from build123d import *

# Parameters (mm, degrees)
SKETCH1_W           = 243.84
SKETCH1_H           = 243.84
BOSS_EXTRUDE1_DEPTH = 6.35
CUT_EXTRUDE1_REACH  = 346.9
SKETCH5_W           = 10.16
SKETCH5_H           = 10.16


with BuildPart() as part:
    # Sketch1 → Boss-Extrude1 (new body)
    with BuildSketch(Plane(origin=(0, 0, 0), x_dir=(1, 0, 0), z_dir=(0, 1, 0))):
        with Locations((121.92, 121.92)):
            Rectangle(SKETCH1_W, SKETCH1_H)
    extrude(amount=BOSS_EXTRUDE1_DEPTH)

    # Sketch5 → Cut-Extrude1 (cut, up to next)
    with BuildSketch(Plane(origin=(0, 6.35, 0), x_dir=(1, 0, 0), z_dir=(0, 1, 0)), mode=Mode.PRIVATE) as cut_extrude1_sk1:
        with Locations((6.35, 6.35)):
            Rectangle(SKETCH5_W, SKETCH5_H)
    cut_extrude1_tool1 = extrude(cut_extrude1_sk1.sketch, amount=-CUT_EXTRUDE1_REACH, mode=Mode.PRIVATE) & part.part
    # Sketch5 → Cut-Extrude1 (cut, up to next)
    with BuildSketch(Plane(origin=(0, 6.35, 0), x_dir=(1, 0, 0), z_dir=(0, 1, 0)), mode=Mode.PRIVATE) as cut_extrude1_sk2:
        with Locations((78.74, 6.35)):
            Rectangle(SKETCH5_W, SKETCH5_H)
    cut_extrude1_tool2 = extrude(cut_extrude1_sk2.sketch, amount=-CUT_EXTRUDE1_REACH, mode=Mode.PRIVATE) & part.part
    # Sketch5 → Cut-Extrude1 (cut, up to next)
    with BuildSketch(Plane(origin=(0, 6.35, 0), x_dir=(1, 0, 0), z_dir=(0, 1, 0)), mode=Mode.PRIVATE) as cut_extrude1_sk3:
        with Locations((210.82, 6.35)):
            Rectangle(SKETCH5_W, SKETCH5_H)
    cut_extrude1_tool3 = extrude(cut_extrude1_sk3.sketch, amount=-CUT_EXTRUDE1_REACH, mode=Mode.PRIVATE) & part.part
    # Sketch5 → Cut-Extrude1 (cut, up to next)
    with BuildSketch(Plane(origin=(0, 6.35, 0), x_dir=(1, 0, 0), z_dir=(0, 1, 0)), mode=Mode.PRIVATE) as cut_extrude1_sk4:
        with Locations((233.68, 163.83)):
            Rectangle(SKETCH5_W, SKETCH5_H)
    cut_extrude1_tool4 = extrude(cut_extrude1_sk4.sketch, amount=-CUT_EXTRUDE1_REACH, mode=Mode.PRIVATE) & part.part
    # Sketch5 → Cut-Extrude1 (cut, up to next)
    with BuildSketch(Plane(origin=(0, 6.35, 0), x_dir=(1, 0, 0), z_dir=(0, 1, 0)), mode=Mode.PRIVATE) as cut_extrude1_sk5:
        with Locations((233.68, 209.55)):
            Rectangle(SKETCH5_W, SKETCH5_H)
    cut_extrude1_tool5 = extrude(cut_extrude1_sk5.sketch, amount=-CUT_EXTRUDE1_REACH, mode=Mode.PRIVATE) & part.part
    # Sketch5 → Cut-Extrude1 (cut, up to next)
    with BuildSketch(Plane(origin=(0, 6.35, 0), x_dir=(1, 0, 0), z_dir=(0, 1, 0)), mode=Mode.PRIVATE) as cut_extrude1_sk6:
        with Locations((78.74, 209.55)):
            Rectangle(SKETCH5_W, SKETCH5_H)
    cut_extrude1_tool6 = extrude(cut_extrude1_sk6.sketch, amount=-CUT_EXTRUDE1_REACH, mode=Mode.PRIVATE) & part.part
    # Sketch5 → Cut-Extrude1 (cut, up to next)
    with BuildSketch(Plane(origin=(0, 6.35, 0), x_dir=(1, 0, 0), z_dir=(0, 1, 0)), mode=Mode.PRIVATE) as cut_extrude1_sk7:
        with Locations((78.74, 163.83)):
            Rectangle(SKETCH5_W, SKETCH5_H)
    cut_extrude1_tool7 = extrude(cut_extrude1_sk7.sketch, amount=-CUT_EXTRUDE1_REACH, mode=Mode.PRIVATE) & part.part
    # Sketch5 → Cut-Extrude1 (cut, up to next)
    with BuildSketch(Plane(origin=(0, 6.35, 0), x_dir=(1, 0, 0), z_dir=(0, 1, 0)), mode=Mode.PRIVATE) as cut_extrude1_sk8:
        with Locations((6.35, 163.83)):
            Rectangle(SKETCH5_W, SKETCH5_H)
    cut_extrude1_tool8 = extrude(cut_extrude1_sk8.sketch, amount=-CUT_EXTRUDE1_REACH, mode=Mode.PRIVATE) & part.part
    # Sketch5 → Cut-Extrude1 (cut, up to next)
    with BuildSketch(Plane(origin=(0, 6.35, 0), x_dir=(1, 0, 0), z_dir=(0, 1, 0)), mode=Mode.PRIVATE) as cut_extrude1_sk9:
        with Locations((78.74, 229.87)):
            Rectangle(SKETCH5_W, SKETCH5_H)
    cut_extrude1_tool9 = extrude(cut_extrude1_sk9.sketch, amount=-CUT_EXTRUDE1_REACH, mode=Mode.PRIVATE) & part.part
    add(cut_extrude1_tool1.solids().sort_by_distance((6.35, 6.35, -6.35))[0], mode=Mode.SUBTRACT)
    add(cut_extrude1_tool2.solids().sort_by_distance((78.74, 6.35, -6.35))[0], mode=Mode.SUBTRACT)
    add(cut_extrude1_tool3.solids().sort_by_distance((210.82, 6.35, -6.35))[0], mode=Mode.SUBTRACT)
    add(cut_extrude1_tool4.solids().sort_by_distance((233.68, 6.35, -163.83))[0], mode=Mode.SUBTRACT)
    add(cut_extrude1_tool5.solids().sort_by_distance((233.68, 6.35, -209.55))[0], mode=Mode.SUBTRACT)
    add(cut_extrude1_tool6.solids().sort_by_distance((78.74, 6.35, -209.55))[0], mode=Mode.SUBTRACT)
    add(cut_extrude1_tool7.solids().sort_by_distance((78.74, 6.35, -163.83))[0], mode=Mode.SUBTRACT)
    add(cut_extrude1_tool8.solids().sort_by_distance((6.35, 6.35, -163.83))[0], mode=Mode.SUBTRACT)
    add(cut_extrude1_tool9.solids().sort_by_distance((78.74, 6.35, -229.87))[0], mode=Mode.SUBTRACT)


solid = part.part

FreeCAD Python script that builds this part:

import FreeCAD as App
import Part
import Sketcher

V = App.Vector
Q = App.Units.Quantity

doc = App.newDocument("Part")
params = doc.addObject("Spreadsheet::Sheet", "Params")
for row, (alias, value) in enumerate([
    ("sketch1_width", "9.6 in"),
    ("pad1_length", "0.25 in"),
    ("sketch2_width", "0.4 in"),
    ("sketch3_width", "0.4 in"),
    ("sketch4_width", "0.4 in"),
    ("sketch5_width", "0.4 in"),
    ("sketch6_width", "0.4 in"),
    ("sketch7_width", "0.4 in"),
    ("sketch8_width", "0.4 in"),
    ("sketch9_width", "0.4 in"),
    ("sketch10_width", "0.4 in"),
], start=1):
    params.set(f"A{row}", alias)
    params.set(f"B{row}", "=" + value)
    params.setAlias(f"B{row}", alias)

body = doc.addObject("PartDesign::Body", "Body")

# Sketch on XZ plane
sketch1 = body.newObject("Sketcher::SketchObject", "Sketch")
sketch1.AttachmentSupport = (doc.getObject("XZ_Plane"), [""])
sketch1.MapMode = "FlatFace"
sketch1.addGeometry([
    Part.LineSegment(V(0, -244, 0), V(0, 0, 0)),
    Part.LineSegment(V(0, 0, 0), V(244, 0, 0)),
    Part.LineSegment(V(244, 0, 0), V(244, -244, 0)),
    Part.LineSegment(V(244, -244, 0), V(0, -244, 0)),
], False)
sketch1.addConstraint([
    Sketcher.Constraint("Coincident", 0, 2, 1, 1),
    Sketcher.Constraint("Coincident", 1, 2, 2, 1),
    Sketcher.Constraint("Coincident", 2, 2, 3, 1),
    Sketcher.Constraint("Coincident", 3, 2, 0, 1),
    Sketcher.Constraint("Vertical", 0),
    Sketcher.Constraint("Horizontal", 1),
    Sketcher.Constraint("Vertical", 2),
    Sketcher.Constraint("Horizontal", 3),
    Sketcher.Constraint("Coincident", 0, 2, -1, 1),
    Sketcher.Constraint("Equal", 3, 0),
    Sketcher.Constraint("DistanceX", 1, 1, 1, 2, Q("9.6 in")),
])
sketch1.setExpression("Constraints[10]", "Params.sketch1_width")
pad1 = body.newObject("PartDesign::Pad", "Pad")
pad1.Profile = sketch1
pad1.setExpression("Length", "Params.pad1_length")
pad1.Reversed = True

# Sketch on XZ plane
sketch2 = body.newObject("Sketcher::SketchObject", "Sketch001")
sketch2.AttachmentSupport = (doc.getObject("XZ_Plane"), [""])
sketch2.MapMode = "FlatFace"
sketch2.AttachmentOffset = App.Placement(V(0, 0, -0.25 * 25.4), App.Rotation())
sketch2.addGeometry([
    Part.LineSegment(V(1, -11, 0), V(1, -1, 0)),
    Part.LineSegment(V(1, -1, 0), V(11, -1, 0)),
    Part.LineSegment(V(11, -1, 0), V(11, -11, 0)),
    Part.LineSegment(V(11, -11, 0), V(1, -11, 0)),
], False)
sketch2.addConstraint([
    Sketcher.Constraint("Coincident", 0, 2, 1, 1),
    Sketcher.Constraint("Coincident", 1, 2, 2, 1),
    Sketcher.Constraint("Coincident", 2, 2, 3, 1),
    Sketcher.Constraint("Coincident", 3, 2, 0, 1),
    Sketcher.Constraint("Vertical", 0),
    Sketcher.Constraint("Horizontal", 1),
    Sketcher.Constraint("Vertical", 2),
    Sketcher.Constraint("Horizontal", 3),
    Sketcher.Constraint("Equal", 3, 0),
    Sketcher.Constraint("DistanceX", 1, 1, 1, 2, Q("0.4 in")),
    Sketcher.Constraint("DistanceX", -1, 1, 0, 2, Q("0.05 in")),
    Sketcher.Constraint("DistanceY", 0, 2, -1, 1, Q("0.05 in")),
])
sketch2.setExpression("Constraints[9]", "Params.sketch2_width")
pocket1 = body.newObject("PartDesign::Pocket", "Pocket")
pocket1.Profile = sketch2
pocket1.Type = "UpToFirst"
pocket1.Reversed = True

# Sketch on XZ plane
sketch3 = body.newObject("Sketcher::SketchObject", "Sketch002")
sketch3.AttachmentSupport = (doc.getObject("XZ_Plane"), [""])
sketch3.MapMode = "FlatFace"
sketch3.AttachmentOffset = App.Placement(V(0, 0, -0.25 * 25.4), App.Rotation())
sketch3.addGeometry([
    Part.LineSegment(V(74, -11, 0), V(74, -1, 0)),
    Part.LineSegment(V(74, -1, 0), V(84, -1, 0)),
    Part.LineSegment(V(84, -1, 0), V(84, -11, 0)),
    Part.LineSegment(V(84, -11, 0), V(74, -11, 0)),
], False)
sketch3.addConstraint([
    Sketcher.Constraint("Coincident", 0, 2, 1, 1),
    Sketcher.Constraint("Coincident", 1, 2, 2, 1),
    Sketcher.Constraint("Coincident", 2, 2, 3, 1),
    Sketcher.Constraint("Coincident", 3, 2, 0, 1),
    Sketcher.Constraint("Vertical", 0),
    Sketcher.Constraint("Horizontal", 1),
    Sketcher.Constraint("Vertical", 2),
    Sketcher.Constraint("Horizontal", 3),
    Sketcher.Constraint("Equal", 3, 0),
    Sketcher.Constraint("DistanceX", 1, 1, 1, 2, Q("0.4 in")),
    Sketcher.Constraint("DistanceX", -1, 1, 0, 2, Q("2.9 in")),
    Sketcher.Constraint("DistanceY", 0, 2, -1, 1, Q("0.05 in")),
])
sketch3.setExpression("Constraints[9]", "Params.sketch3_width")
pocket2 = body.newObject("PartDesign::Pocket", "Pocket001")
pocket2.Profile = sketch3
pocket2.Type = "UpToFirst"
pocket2.Reversed = True

# Sketch on XZ plane
sketch4 = body.newObject("Sketcher::SketchObject", "Sketch003")
sketch4.AttachmentSupport = (doc.getObject("XZ_Plane"), [""])
sketch4.MapMode = "FlatFace"
sketch4.AttachmentOffset = App.Placement(V(0, 0, -0.25 * 25.4), App.Rotation())
sketch4.addGeometry([
    Part.LineSegment(V(206, -11, 0), V(206, -1, 0)),
    Part.LineSegment(V(206, -1, 0), V(216, -1, 0)),
    Part.LineSegment(V(216, -1, 0), V(216, -11, 0)),
    Part.LineSegment(V(216, -11, 0), V(206, -11, 0)),
], False)
sketch4.addConstraint([
    Sketcher.Constraint("Coincident", 0, 2, 1, 1),
    Sketcher.Constraint("Coincident", 1, 2, 2, 1),
    Sketcher.Constraint("Coincident", 2, 2, 3, 1),
    Sketcher.Constraint("Coincident", 3, 2, 0, 1),
    Sketcher.Constraint("Vertical", 0),
    Sketcher.Constraint("Horizontal", 1),
    Sketcher.Constraint("Vertical", 2),
    Sketcher.Constraint("Horizontal", 3),
    Sketcher.Constraint("Equal", 3, 0),
    Sketcher.Constraint("DistanceX", 1, 1, 1, 2, Q("0.4 in")),
    Sketcher.Constraint("DistanceX", -1, 1, 0, 2, Q("8.1 in")),
    Sketcher.Constraint("DistanceY", 0, 2, -1, 1, Q("0.05 in")),
])
sketch4.setExpression("Constraints[9]", "Params.sketch4_width")
pocket3 = body.newObject("PartDesign::Pocket", "Pocket002")
pocket3.Profile = sketch4
pocket3.Type = "UpToFirst"
pocket3.Reversed = True

# Sketch on XZ plane
sketch5 = body.newObject("Sketcher::SketchObject", "Sketch004")
sketch5.AttachmentSupport = (doc.getObject("XZ_Plane"), [""])
sketch5.MapMode = "FlatFace"
sketch5.AttachmentOffset = App.Placement(V(0, 0, -0.25 * 25.4), App.Rotation())
sketch5.addGeometry([
    Part.LineSegment(V(229, -169, 0), V(229, -159, 0)),
    Part.LineSegment(V(229, -159, 0), V(239, -159, 0)),
    Part.LineSegment(V(239, -159, 0), V(239, -169, 0)),
    Part.LineSegment(V(239, -169, 0), V(229, -169, 0)),
], False)
sketch5.addConstraint([
    Sketcher.Constraint("Coincident", 0, 2, 1, 1),
    Sketcher.Constraint("Coincident", 1, 2, 2, 1),
    Sketcher.Constraint("Coincident", 2, 2, 3, 1),
    Sketcher.Constraint("Coincident", 3, 2, 0, 1),
    Sketcher.Constraint("Vertical", 0),
    Sketcher.Constraint("Horizontal", 1),
    Sketcher.Constraint("Vertical", 2),
    Sketcher.Constraint("Horizontal", 3),
    Sketcher.Constraint("Equal", 3, 0),
    Sketcher.Constraint("DistanceX", 1, 1, 1, 2, Q("0.4 in")),
    Sketcher.Constraint("DistanceX", -1, 1, 0, 2, Q("9 in")),
    Sketcher.Constraint("DistanceY", 0, 2, -1, 1, Q("6.25 in")),
])
sketch5.setExpression("Constraints[9]", "Params.sketch5_width")
pocket4 = body.newObject("PartDesign::Pocket", "Pocket003")
pocket4.Profile = sketch5
pocket4.Type = "UpToFirst"
pocket4.Reversed = True

# Sketch on XZ plane
sketch6 = body.newObject("Sketcher::SketchObject", "Sketch005")
sketch6.AttachmentSupport = (doc.getObject("XZ_Plane"), [""])
sketch6.MapMode = "FlatFace"
sketch6.AttachmentOffset = App.Placement(V(0, 0, -0.25 * 25.4), App.Rotation())
sketch6.addGeometry([
    Part.LineSegment(V(229, -215, 0), V(229, -204, 0)),
    Part.LineSegment(V(229, -204, 0), V(239, -204, 0)),
    Part.LineSegment(V(239, -204, 0), V(239, -215, 0)),
    Part.LineSegment(V(239, -215, 0), V(229, -215, 0)),
], False)
sketch6.addConstraint([
    Sketcher.Constraint("Coincident", 0, 2, 1, 1),
    Sketcher.Constraint("Coincident", 1, 2, 2, 1),
    Sketcher.Constraint("Coincident", 2, 2, 3, 1),
    Sketcher.Constraint("Coincident", 3, 2, 0, 1),
    Sketcher.Constraint("Vertical", 0),
    Sketcher.Constraint("Horizontal", 1),
    Sketcher.Constraint("Vertical", 2),
    Sketcher.Constraint("Horizontal", 3),
    Sketcher.Constraint("Equal", 3, 0),
    Sketcher.Constraint("DistanceX", 1, 1, 1, 2, Q("0.4 in")),
    Sketcher.Constraint("DistanceX", -1, 1, 0, 2, Q("9 in")),
    Sketcher.Constraint("DistanceY", 0, 2, -1, 1, Q("8.05 in")),
])
sketch6.setExpression("Constraints[9]", "Params.sketch6_width")
pocket5 = body.newObject("PartDesign::Pocket", "Pocket004")
pocket5.Profile = sketch6
pocket5.Type = "UpToFirst"
pocket5.Reversed = True

# Sketch on XZ plane
sketch7 = body.newObject("Sketcher::SketchObject", "Sketch006")
sketch7.AttachmentSupport = (doc.getObject("XZ_Plane"), [""])
sketch7.MapMode = "FlatFace"
sketch7.AttachmentOffset = App.Placement(V(0, 0, -0.25 * 25.4), App.Rotation())
sketch7.addGeometry([
    Part.LineSegment(V(74, -215, 0), V(74, -204, 0)),
    Part.LineSegment(V(74, -204, 0), V(84, -204, 0)),
    Part.LineSegment(V(84, -204, 0), V(84, -215, 0)),
    Part.LineSegment(V(84, -215, 0), V(74, -215, 0)),
], False)
sketch7.addConstraint([
    Sketcher.Constraint("Coincident", 0, 2, 1, 1),
    Sketcher.Constraint("Coincident", 1, 2, 2, 1),
    Sketcher.Constraint("Coincident", 2, 2, 3, 1),
    Sketcher.Constraint("Coincident", 3, 2, 0, 1),
    Sketcher.Constraint("Vertical", 0),
    Sketcher.Constraint("Horizontal", 1),
    Sketcher.Constraint("Vertical", 2),
    Sketcher.Constraint("Horizontal", 3),
    Sketcher.Constraint("Equal", 3, 0),
    Sketcher.Constraint("DistanceX", 1, 1, 1, 2, Q("0.4 in")),
    Sketcher.Constraint("DistanceX", -1, 1, 0, 2, Q("2.9 in")),
    Sketcher.Constraint("DistanceY", 0, 2, -1, 1, Q("8.05 in")),
])
sketch7.setExpression("Constraints[9]", "Params.sketch7_width")
pocket6 = body.newObject("PartDesign::Pocket", "Pocket005")
pocket6.Profile = sketch7
pocket6.Type = "UpToFirst"
pocket6.Reversed = True

# Sketch on XZ plane
sketch8 = body.newObject("Sketcher::SketchObject", "Sketch007")
sketch8.AttachmentSupport = (doc.getObject("XZ_Plane"), [""])
sketch8.MapMode = "FlatFace"
sketch8.AttachmentOffset = App.Placement(V(0, 0, -0.25 * 25.4), App.Rotation())
sketch8.addGeometry([
    Part.LineSegment(V(74, -169, 0), V(74, -159, 0)),
    Part.LineSegment(V(74, -159, 0), V(84, -159, 0)),
    Part.LineSegment(V(84, -159, 0), V(84, -169, 0)),
    Part.LineSegment(V(84, -169, 0), V(74, -169, 0)),
], False)
sketch8.addConstraint([
    Sketcher.Constraint("Coincident", 0, 2, 1, 1),
    Sketcher.Constraint("Coincident", 1, 2, 2, 1),
    Sketcher.Constraint("Coincident", 2, 2, 3, 1),
    Sketcher.Constraint("Coincident", 3, 2, 0, 1),
    Sketcher.Constraint("Vertical", 0),
    Sketcher.Constraint("Horizontal", 1),
    Sketcher.Constraint("Vertical", 2),
    Sketcher.Constraint("Horizontal", 3),
    Sketcher.Constraint("Equal", 3, 0),
    Sketcher.Constraint("DistanceX", 1, 1, 1, 2, Q("0.4 in")),
    Sketcher.Constraint("DistanceX", -1, 1, 0, 2, Q("2.9 in")),
    Sketcher.Constraint("DistanceY", 0, 2, -1, 1, Q("6.25 in")),
])
sketch8.setExpression("Constraints[9]", "Params.sketch8_width")
pocket7 = body.newObject("PartDesign::Pocket", "Pocket006")
pocket7.Profile = sketch8
pocket7.Type = "UpToFirst"
pocket7.Reversed = True

# Sketch on XZ plane
sketch9 = body.newObject("Sketcher::SketchObject", "Sketch008")
sketch9.AttachmentSupport = (doc.getObject("XZ_Plane"), [""])
sketch9.MapMode = "FlatFace"
sketch9.AttachmentOffset = App.Placement(V(0, 0, -0.25 * 25.4), App.Rotation())
sketch9.addGeometry([
    Part.LineSegment(V(1, -169, 0), V(1, -159, 0)),
    Part.LineSegment(V(1, -159, 0), V(11, -159, 0)),
    Part.LineSegment(V(11, -159, 0), V(11, -169, 0)),
    Part.LineSegment(V(11, -169, 0), V(1, -169, 0)),
], False)
sketch9.addConstraint([
    Sketcher.Constraint("Coincident", 0, 2, 1, 1),
    Sketcher.Constraint("Coincident", 1, 2, 2, 1),
    Sketcher.Constraint("Coincident", 2, 2, 3, 1),
    Sketcher.Constraint("Coincident", 3, 2, 0, 1),
    Sketcher.Constraint("Vertical", 0),
    Sketcher.Constraint("Horizontal", 1),
    Sketcher.Constraint("Vertical", 2),
    Sketcher.Constraint("Horizontal", 3),
    Sketcher.Constraint("Equal", 3, 0),
    Sketcher.Constraint("DistanceX", 1, 1, 1, 2, Q("0.4 in")),
    Sketcher.Constraint("DistanceX", -1, 1, 0, 2, Q("0.05 in")),
    Sketcher.Constraint("DistanceY", 0, 2, -1, 1, Q("6.25 in")),
])
sketch9.setExpression("Constraints[9]", "Params.sketch9_width")
pocket8 = body.newObject("PartDesign::Pocket", "Pocket007")
pocket8.Profile = sketch9
pocket8.Type = "UpToFirst"
pocket8.Reversed = True

# Sketch on XZ plane
sketch10 = body.newObject("Sketcher::SketchObject", "Sketch009")
sketch10.AttachmentSupport = (doc.getObject("XZ_Plane"), [""])
sketch10.MapMode = "FlatFace"
sketch10.AttachmentOffset = App.Placement(V(0, 0, -0.25 * 25.4), App.Rotation())
sketch10.addGeometry([
    Part.LineSegment(V(74, -235, 0), V(74, -225, 0)),
    Part.LineSegment(V(74, -225, 0), V(84, -225, 0)),
    Part.LineSegment(V(84, -225, 0), V(84, -235, 0)),
    Part.LineSegment(V(84, -235, 0), V(74, -235, 0)),
], False)
sketch10.addConstraint([
    Sketcher.Constraint("Coincident", 0, 2, 1, 1),
    Sketcher.Constraint("Coincident", 1, 2, 2, 1),
    Sketcher.Constraint("Coincident", 2, 2, 3, 1),
    Sketcher.Constraint("Coincident", 3, 2, 0, 1),
    Sketcher.Constraint("Vertical", 0),
    Sketcher.Constraint("Horizontal", 1),
    Sketcher.Constraint("Vertical", 2),
    Sketcher.Constraint("Horizontal", 3),
    Sketcher.Constraint("Equal", 3, 0),
    Sketcher.Constraint("DistanceX", 1, 1, 1, 2, Q("0.4 in")),
    Sketcher.Constraint("DistanceX", -1, 1, 0, 2, Q("2.9 in")),
    Sketcher.Constraint("DistanceY", 0, 2, -1, 1, Q("8.85 in")),
])
sketch10.setExpression("Constraints[9]", "Params.sketch10_width")
pocket9 = body.newObject("PartDesign::Pocket", "Pocket008")
pocket9.Profile = sketch10
pocket9.Type = "UpToFirst"
pocket9.Reversed = True

doc.recompute()
